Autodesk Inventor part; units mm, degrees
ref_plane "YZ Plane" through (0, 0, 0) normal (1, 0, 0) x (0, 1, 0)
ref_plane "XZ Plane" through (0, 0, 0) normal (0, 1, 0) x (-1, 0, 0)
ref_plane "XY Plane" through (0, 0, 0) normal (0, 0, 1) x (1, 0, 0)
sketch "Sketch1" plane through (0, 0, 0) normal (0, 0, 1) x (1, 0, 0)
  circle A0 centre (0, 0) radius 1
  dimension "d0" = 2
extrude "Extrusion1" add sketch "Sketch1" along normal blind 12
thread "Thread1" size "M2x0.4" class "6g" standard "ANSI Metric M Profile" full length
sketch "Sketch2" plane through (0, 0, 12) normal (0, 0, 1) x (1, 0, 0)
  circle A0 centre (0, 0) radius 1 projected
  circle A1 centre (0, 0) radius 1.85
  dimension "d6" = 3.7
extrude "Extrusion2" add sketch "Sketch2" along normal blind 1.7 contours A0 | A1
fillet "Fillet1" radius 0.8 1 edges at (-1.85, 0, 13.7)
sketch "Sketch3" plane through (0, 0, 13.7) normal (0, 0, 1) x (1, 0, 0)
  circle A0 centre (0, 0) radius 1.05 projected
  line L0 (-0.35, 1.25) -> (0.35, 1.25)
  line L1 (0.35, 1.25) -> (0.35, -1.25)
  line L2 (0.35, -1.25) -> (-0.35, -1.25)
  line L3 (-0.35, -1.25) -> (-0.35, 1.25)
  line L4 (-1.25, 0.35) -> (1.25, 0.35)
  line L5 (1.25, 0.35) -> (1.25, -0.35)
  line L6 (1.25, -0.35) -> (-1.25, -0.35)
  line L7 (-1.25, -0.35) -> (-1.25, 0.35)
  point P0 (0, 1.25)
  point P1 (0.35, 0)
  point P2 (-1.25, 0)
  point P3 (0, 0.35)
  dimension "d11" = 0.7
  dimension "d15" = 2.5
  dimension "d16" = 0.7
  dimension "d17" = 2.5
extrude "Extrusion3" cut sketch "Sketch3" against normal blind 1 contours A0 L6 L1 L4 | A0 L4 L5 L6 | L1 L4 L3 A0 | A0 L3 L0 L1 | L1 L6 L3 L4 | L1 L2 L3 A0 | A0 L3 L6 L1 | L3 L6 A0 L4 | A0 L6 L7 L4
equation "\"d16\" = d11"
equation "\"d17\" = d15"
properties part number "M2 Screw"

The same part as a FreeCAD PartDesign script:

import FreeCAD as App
import Part
import Sketcher
Q = App.Units.Quantity


def edges_at(feature, points):
    """Names of the edges that pass closest to the given points."""
    edges = feature.Shape.Edges
    near = lambda p: min(range(len(edges)), key=lambda i: edges[i].distToShape(Part.Vertex(*p))[0])
    return sorted({f"Edge{near(p) + 1}" for p in points})

doc = App.newDocument("Part")
body = doc.addObject("PartDesign::Body", "Body")

# Sketch on XY plane
sketch1 = body.newObject("Sketcher::SketchObject", "Sketch")
sketch1.AttachmentSupport = (doc.getObject("XY_Plane"), [""])
sketch1.MapMode = "FlatFace"
sketch1.addGeometry(Part.Circle(App.Vector(0, 0, 0), App.Vector(0, 0, 1), 1), False)
sketch1.addConstraint([
    Sketcher.Constraint("Coincident", 0, 3, -1, 1),
    Sketcher.Constraint("Diameter", 0, Q("2 mm")),
])
pad1 = body.newObject("PartDesign::Pad", "Pad")
pad1.Profile = sketch1
pad1.Length = 12

# Sketch on XY plane
sketch2 = body.newObject("Sketcher::SketchObject", "Sketch001")
sketch2.AttachmentSupport = (doc.getObject("XY_Plane"), [""])
sketch2.MapMode = "FlatFace"
sketch2.AttachmentOffset = App.Placement(App.Vector(0, 0, 12), App.Rotation())
sketch2.addGeometry(Part.Circle(App.Vector(0, 0, 0), App.Vector(0, 0, 1), 1.9), False)
sketch2.addConstraint([
    Sketcher.Constraint("Coincident", 0, 3, -1, 1),
    Sketcher.Constraint("Diameter", 0, Q("3.7 mm")),
])
pad2 = body.newObject("PartDesign::Pad", "Pad001")
pad2.Profile = sketch2
pad2.Length = 1.7
doc.recompute()

fillet = body.newObject("PartDesign::Fillet", "Fillet")
fillet.Base = (pad2, edges_at(pad2, [(-1.85, 0, 13.7)]))
fillet.Radius = 0.8

# Sketch on XY plane
sketch3 = body.newObject("Sketcher::SketchObject", "Sketch002")
sketch3.AttachmentSupport = (doc.getObject("XY_Plane"), [""])
sketch3.MapMode = "FlatFace"
sketch3.AttachmentOffset = App.Placement(App.Vector(0, 0, 13.7), App.Rotation())
sketch3.addGeometry([
    Part.LineSegment(App.Vector(0.3, -0.3, 0), App.Vector(1.2, -0.3, 0)),  # 0
    Part.LineSegment(App.Vector(1.2, -0.3, 0), App.Vector(1.2, 0.3, 0)),  # 1
    Part.LineSegment(App.Vector(1.2, 0.3, 0), App.Vector(0.3, 0.3, 0)),  # 2
    Part.LineSegment(App.Vector(0.3, 0.3, 0), App.Vector(0.3, 1.2, 0)),  # 3
    Part.LineSegment(App.Vector(0.3, 1.2, 0), App.Vector(-0.3, 1.2, 0)),  # 4
    Part.LineSegment(App.Vector(-0.3, 1.2, 0), App.Vector(-0.3, 0.3, 0)),  # 5
    Part.LineSegment(App.Vector(-0.3, 0.3, 0), App.Vector(-1.2, 0.3, 0)),  # 6
    Part.LineSegment(App.Vector(-1.2, 0.3, 0), App.Vector(-1.2, -0.3, 0)),  # 7
    Part.LineSegment(App.Vector(-1.2, -0.3, 0), App.Vector(-0.3, -0.3, 0)),  # 8
    Part.LineSegment(App.Vector(-0.3, -0.3, 0), App.Vector(-0.3, -1.2, 0)),  # 9
    Part.LineSegment(App.Vector(-0.3, -1.2, 0), App.Vector(0.3, -1.2, 0)),  # 10
    Part.LineSegment(App.Vector(0.3, -1.2, 0), App.Vector(0.3, -0.3, 0)),  # 11
], False)
sketch3.addConstraint([
    Sketcher.Constraint("Coincident", 0, 2, 1, 1),
    Sketcher.Constraint("Coincident", 1, 2, 2, 1),
    Sketcher.Constraint("Coincident", 2, 2, 3, 1),
    Sketcher.Constraint("Coincident", 3, 2, 4, 1),
    Sketcher.Constraint("Coincident", 4, 2, 5, 1),
    Sketcher.Constraint("Coincident", 5, 2, 6, 1),
    Sketcher.Constraint("Coincident", 6, 2, 7, 1),
    Sketcher.Constraint("Coincident", 7, 2, 8, 1),
    Sketcher.Constraint("Coincident", 8, 2, 9, 1),
    Sketcher.Constraint("Coincident", 9, 2, 10, 1),
    Sketcher.Constraint("Coincident", 10, 2, 11, 1),
    Sketcher.Constraint("Coincident", 11, 2, 0, 1),
    Sketcher.Constraint("Horizontal", 0),
    Sketcher.Constraint("Vertical", 1),
    Sketcher.Constraint("Horizontal", 2),
    Sketcher.Constraint("Vertical", 3),
    Sketcher.Constraint("Horizontal", 4),
    Sketcher.Constraint("Vertical", 5),
    Sketcher.Constraint("Horizontal", 6),
    Sketcher.Constraint("Vertical", 7),
    Sketcher.Constraint("Horizontal", 8),
    Sketcher.Constraint("Vertical", 9),
    Sketcher.Constraint("Horizontal", 10),
    Sketcher.Constraint("Vertical", 11),
    Sketcher.Constraint("Symmetric", 0, 2, 6, 2, -1, 1),
    Sketcher.Constraint("Symmetric", 2, 2, 8, 2, -1, 1),
    Sketcher.Constraint("Symmetric", 4, 2, 10, 2, -1, 1),
    Sketcher.Constraint("Symmetric", 2, 2, 5, 2, -2),
    Sketcher.Constraint("Equal", 10, 1),
    Sketcher.Constraint("Equal", 8, 3),
    Sketcher.Constraint("DistanceX", 4, 2, 4, 1, Q("0.7 mm")),
    Sketcher.Constraint("DistanceX", 6, 2, 1, 2, Q("2.5 mm")),
])
pocket1 = body.newObject("PartDesign::Pocket", "Pocket")
pocket1.Profile = sketch3
pocket1.Length = 1

doc.recompute()
